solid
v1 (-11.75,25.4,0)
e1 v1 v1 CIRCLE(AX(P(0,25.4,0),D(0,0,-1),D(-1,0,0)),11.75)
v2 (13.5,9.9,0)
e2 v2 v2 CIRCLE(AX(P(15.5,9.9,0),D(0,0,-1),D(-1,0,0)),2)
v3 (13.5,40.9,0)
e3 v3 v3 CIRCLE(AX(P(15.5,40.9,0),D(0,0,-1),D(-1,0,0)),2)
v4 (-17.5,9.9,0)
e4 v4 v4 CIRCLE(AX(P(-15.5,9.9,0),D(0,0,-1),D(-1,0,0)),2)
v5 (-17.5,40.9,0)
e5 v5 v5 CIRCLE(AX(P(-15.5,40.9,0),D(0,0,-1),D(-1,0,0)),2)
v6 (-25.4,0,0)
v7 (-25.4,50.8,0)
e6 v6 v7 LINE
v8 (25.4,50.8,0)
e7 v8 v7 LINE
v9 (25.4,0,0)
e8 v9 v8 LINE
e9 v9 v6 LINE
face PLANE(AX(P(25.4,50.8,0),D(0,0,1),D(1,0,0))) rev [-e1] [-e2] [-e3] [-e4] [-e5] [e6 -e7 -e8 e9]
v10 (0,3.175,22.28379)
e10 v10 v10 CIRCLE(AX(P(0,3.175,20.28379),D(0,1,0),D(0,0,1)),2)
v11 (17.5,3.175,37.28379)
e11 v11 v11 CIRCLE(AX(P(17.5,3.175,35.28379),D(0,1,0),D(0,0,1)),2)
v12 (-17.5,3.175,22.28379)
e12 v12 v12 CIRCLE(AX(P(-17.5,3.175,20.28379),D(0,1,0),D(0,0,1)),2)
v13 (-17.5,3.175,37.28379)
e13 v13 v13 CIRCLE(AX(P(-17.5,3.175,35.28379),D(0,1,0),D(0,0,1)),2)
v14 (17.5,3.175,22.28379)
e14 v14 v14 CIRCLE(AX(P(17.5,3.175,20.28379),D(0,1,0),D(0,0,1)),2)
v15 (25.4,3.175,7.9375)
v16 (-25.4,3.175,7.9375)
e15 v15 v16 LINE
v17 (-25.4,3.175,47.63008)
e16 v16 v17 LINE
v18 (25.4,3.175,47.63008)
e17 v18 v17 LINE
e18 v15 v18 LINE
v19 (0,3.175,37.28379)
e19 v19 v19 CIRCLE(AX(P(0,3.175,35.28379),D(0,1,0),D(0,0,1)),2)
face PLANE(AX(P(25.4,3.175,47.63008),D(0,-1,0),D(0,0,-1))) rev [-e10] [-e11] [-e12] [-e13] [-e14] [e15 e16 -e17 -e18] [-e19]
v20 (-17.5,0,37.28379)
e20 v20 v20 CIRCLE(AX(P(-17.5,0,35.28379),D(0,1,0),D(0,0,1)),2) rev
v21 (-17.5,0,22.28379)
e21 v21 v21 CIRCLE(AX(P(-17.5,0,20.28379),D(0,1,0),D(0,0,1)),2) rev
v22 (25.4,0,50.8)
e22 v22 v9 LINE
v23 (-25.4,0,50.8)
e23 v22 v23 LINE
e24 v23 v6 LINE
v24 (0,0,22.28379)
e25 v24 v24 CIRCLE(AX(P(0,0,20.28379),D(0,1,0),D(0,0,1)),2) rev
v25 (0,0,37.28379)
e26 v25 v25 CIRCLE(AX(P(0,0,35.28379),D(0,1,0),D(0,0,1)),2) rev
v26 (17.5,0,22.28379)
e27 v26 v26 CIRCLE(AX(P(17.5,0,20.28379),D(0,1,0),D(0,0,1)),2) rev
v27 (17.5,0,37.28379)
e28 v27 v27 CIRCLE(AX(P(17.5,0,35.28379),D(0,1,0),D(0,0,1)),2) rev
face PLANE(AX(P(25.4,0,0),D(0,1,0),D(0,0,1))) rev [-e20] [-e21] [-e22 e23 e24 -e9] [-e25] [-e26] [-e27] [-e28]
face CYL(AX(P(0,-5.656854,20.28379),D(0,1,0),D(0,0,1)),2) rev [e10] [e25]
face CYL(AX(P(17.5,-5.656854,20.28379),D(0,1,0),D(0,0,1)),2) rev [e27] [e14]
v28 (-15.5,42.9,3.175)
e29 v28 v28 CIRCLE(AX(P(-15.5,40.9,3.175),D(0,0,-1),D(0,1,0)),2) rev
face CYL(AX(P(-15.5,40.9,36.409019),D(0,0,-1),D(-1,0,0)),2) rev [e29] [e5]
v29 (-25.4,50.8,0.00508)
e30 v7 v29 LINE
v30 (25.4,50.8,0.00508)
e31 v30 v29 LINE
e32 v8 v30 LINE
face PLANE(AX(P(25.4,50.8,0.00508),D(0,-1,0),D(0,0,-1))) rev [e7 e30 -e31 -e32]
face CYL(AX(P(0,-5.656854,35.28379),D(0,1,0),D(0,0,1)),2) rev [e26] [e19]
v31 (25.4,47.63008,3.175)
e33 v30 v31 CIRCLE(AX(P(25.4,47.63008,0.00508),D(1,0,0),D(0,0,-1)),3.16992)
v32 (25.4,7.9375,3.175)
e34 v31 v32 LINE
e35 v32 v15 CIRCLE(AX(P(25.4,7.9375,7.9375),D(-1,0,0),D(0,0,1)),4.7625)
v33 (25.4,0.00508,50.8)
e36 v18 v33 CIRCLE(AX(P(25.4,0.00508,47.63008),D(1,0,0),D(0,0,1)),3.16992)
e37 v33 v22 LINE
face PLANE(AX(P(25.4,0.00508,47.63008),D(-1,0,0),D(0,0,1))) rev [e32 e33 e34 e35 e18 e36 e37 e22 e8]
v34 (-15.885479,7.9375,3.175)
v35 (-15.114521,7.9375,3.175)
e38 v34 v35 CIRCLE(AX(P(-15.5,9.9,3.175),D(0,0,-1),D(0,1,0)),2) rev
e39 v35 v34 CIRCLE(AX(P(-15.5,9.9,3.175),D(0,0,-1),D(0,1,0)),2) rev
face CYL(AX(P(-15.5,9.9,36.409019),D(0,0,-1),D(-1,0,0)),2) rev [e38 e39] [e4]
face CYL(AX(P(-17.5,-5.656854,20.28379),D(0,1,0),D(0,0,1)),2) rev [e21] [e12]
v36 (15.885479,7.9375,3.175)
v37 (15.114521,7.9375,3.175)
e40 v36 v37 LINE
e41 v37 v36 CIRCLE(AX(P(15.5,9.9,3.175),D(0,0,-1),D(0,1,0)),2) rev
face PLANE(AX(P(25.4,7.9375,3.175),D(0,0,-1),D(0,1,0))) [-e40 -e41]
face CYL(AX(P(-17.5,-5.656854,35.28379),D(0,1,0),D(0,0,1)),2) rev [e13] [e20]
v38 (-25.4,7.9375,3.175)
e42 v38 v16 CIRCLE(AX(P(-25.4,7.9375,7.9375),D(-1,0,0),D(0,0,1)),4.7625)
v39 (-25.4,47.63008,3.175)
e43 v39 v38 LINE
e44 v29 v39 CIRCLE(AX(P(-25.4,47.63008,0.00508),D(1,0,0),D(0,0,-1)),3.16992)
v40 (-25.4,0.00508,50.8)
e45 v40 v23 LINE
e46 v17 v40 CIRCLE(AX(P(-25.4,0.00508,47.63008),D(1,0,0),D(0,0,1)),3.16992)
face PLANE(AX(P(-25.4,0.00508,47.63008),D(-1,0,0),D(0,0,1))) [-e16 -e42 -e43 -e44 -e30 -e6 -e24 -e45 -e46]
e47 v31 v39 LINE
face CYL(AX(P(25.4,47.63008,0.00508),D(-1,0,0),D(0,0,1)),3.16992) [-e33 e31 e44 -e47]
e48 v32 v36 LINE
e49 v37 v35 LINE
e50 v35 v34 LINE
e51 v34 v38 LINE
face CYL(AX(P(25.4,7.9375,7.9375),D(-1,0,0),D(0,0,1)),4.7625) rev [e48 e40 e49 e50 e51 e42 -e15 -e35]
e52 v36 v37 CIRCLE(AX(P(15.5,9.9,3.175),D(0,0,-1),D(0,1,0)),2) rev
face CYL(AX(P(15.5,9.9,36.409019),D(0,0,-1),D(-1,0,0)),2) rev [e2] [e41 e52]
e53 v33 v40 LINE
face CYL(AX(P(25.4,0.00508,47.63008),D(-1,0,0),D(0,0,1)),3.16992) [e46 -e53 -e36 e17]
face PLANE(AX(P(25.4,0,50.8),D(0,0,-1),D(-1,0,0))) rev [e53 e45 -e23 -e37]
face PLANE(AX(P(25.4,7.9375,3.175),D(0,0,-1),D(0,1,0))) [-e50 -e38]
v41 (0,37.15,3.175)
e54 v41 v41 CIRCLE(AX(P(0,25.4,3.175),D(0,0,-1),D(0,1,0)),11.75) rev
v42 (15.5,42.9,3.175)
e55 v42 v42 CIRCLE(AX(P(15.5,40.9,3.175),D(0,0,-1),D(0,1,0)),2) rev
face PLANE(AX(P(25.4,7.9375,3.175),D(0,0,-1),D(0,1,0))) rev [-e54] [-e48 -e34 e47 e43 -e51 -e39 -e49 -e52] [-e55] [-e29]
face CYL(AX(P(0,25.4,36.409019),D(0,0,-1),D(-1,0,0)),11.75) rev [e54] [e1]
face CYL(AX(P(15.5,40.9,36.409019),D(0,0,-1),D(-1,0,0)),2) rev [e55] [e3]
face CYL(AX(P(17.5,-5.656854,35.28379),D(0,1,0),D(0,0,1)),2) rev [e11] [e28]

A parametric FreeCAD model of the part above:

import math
import FreeCAD as App
import Part
import Sketcher

V = App.Vector
Q = App.Units.Quantity

doc = App.newDocument("Part")
params = doc.addObject("Spreadsheet::Sheet", "Params")
for row, (alias, value) in enumerate([
    ("sketch1_width", "2 in"),
    ("sketch1_radius", "0.1875 in"),
    ("pad1_length", "2 in"),
    ("pocket1_length", "0.125 in"),
    ("pocket2_length", "0.125 in"),
], start=1):
    params.set(f"A{row}", alias)
    params.set(f"B{row}", "=" + value)
    params.setAlias(f"B{row}", alias)

body = doc.addObject("PartDesign::Body", "Body")

# Sketch on YZ plane
sketch1 = body.newObject("Sketcher::SketchObject", "Sketch")
sketch1.AttachmentSupport = (doc.getObject("YZ_Plane"), [""])
sketch1.MapMode = "FlatFace"
sketch1.AttachmentOffset = App.Placement(V(0, 0, -1 * 25.4), App.Rotation())
sketch1.addGeometry(Part.LineSegment(V(0, 50.8, 0), V(0, 0, 0)), False)
sketch1.addGeometry(Part.LineSegment(V(0, 0, 0), V(50.8, 0, 0)), False)
sketch1.addGeometry(Part.LineSegment(V(50.8, 0, 0), V(50.8, 0.005, 0)), False)
sketch1.addGeometry(Part.ArcOfCircle(Part.Circle(V(47.63, 0.005, 0), V(0, 0, 1), 3.17), math.radians(0), math.radians(90)), False)
sketch1.addGeometry(Part.LineSegment(V(47.63, 3.175, 0), V(7.938, 3.175, 0)), False)
sketch1.addGeometry(Part.ArcOfCircle(Part.Circle(V(7.938, 7.938, 0), V(0, 0, 1), 4.763), math.radians(-180), math.radians(-90)), False)
sketch1.addGeometry(Part.LineSegment(V(3.175, 7.938, 0), V(3.175, 47.63, 0)), False)
sketch1.addGeometry(Part.ArcOfCircle(Part.Circle(V(0.005, 47.63, 0), V(0, 0, 1), 3.17), math.radians(0), math.radians(90)), False)
sketch1.addGeometry(Part.LineSegment(V(0.005, 50.8, 0), V(0, 50.8, 0)), False)
sketch1.addConstraint(Sketcher.Constraint("Coincident", 0, 2, 1, 1))
sketch1.addConstraint(Sketcher.Constraint("Coincident", 1, 2, 2, 1))
sketch1.addConstraint(Sketcher.Constraint("Tangent", 2, 2, 3, 1))
sketch1.addConstraint(Sketcher.Constraint("Tangent", 3, 2, 4, 1))
sketch1.addConstraint(Sketcher.Constraint("Tangent", 4, 2, 5, 2))
sketch1.addConstraint(Sketcher.Constraint("Tangent", 5, 1, 6, 1))
sketch1.addConstraint(Sketcher.Constraint("Tangent", 6, 2, 7, 1))
sketch1.addConstraint(Sketcher.Constraint("Tangent", 7, 2, 8, 1))
sketch1.addConstraint(Sketcher.Constraint("Coincident", 8, 2, 0, 1))
sketch1.addConstraint(Sketcher.Constraint("Vertical", 0))
sketch1.addConstraint(Sketcher.Constraint("Horizontal", 1))
sketch1.addConstraint(Sketcher.Constraint("Horizontal", 4))
sketch1.addConstraint(Sketcher.Constraint("Vertical", 6))
sketch1.addConstraint(Sketcher.Constraint("Coincident", 0, 2, -1, 1))
sketch1.addConstraint(Sketcher.Constraint("Equal", 3, 7))
sketch1.addConstraint(Sketcher.Constraint("Horizontal", 3, 3, 2, 2))
sketch1.addConstraint(Sketcher.Constraint("Equal", 1, 0))
sketch1.addConstraint(Sketcher.Constraint("Equal", 8, 2))
sketch1.addConstraint(Sketcher.Constraint("Equal", 4, 6))
sketch1.addConstraint(Sketcher.Constraint("DistanceX", 1, 1, 1, 2, Q("2 in")))
sketch1.addConstraint(Sketcher.Constraint("Radius", 5, Q("0.1875 in")))
sketch1.addConstraint(Sketcher.Constraint("Radius", 3, Q("0.1248 in")))
sketch1.addConstraint(Sketcher.Constraint("DistanceX", 4, 2, 4, 1, Q("1.5627 in")))
sketch1.setExpression("Constraints[19]", "Params.sketch1_width")
sketch1.setExpression("Constraints[20]", "Params.sketch1_radius")
pad1 = body.newObject("PartDesign::Pad", "Pad")
pad1.Profile = sketch1
pad1.setExpression("Length", "Params.pad1_length")

# Sketch on XY plane
sketch2 = body.newObject("Sketcher::SketchObject", "Sketch001")
sketch2.AttachmentSupport = (doc.getObject("XY_Plane"), [""])
sketch2.MapMode = "FlatFace"
sketch2.addGeometry(Part.Circle(V(0, 25.4, 0), V(0, 0, 1), 11.8), False)
sketch2.addGeometry(Part.Circle(V(15.5, 40.9, 0), V(0, 0, 1), 2), False)
sketch2.addGeometry(Part.Circle(V(-15.5, 40.9, 0), V(0, 0, 1), 2), False)
sketch2.addGeometry(Part.Circle(V(-15.5, 9.9, 0), V(0, 0, 1), 2), False)
sketch2.addGeometry(Part.Circle(V(15.5, 9.9, 0), V(0, 0, 1), 2), False)
sketch2.addConstraint(Sketcher.Constraint("Equal", 1, 2))
sketch2.addConstraint(Sketcher.Constraint("Equal", 2, 3))
sketch2.addConstraint(Sketcher.Constraint("Equal", 3, 4))
sketch2.addConstraint(Sketcher.Constraint("Symmetric", 1, 3, 2, 3, -2))
sketch2.addConstraint(Sketcher.Constraint("Symmetric", 3, 3, 4, 3, -2))
sketch2.addConstraint(Sketcher.Constraint("PointOnObject", 0, 3, -2))
sketch2.addConstraint(Sketcher.Constraint("Vertical", 2, 3, 3, 3))
sketch2.addConstraint(Sketcher.Constraint("DistanceY", -1, 1, 0, 3, Q("1 in")))
sketch2.addConstraint(Sketcher.Constraint("Diameter", 0, 23.5))
sketch2.addConstraint(Sketcher.Constraint("Diameter", 1, 4.0))
sketch2.addConstraint(Sketcher.Constraint("DistanceX", -1, 1, 1, 3, 15.5))
sketch2.addConstraint(Sketcher.Constraint("DistanceY", -1, 1, 1, 3, 40.9))
sketch2.addConstraint(Sketcher.Constraint("DistanceY", -1, 1, 3, 3, 9.9))
pocket1 = body.newObject("PartDesign::Pocket", "Pocket")
pocket1.Profile = sketch2
pocket1.setExpression("Length", "Params.pocket1_length")
pocket1.Reversed = True

# Sketch on XZ plane
sketch3 = body.newObject("Sketcher::SketchObject", "Sketch002")
sketch3.AttachmentSupport = (doc.getObject("XZ_Plane"), [""])
sketch3.MapMode = "FlatFace"
sketch3.AttachmentOffset = App.Placement(V(0, 0, -0.125 * 25.4), App.Rotation())
sketch3.addGeometry(Part.Circle(V(-17.5, 20.3, 0), V(0, 0, 1), 2), False)
sketch3.addGeometry(Part.Circle(V(17.5, 20.3, 0), V(0, 0, 1), 2), False)
sketch3.addGeometry(Part.Circle(V(17.5, 35.3, 0), V(0, 0, 1), 2), False)
sketch3.addGeometry(Part.Circle(V(-17.5, 35.3, 0), V(0, 0, 1), 2), False)
sketch3.addGeometry(Part.Circle(V(0, 20.3, 0), V(0, 0, 1), 2), False)
sketch3.addGeometry(Part.Circle(V(0, 35.3, 0), V(0, 0, 1), 2), False)
sketch3.addConstraint(Sketcher.Constraint("Equal", 0, 1))
sketch3.addConstraint(Sketcher.Constraint("Equal", 1, 2))
sketch3.addConstraint(Sketcher.Constraint("Equal", 2, 3))
sketch3.addConstraint(Sketcher.Constraint("Equal", 3, 4))
sketch3.addConstraint(Sketcher.Constraint("Equal", 4, 5))
sketch3.addConstraint(Sketcher.Constraint("Symmetric", 0, 3, 1, 3, -2))
sketch3.addConstraint(Sketcher.Constraint("Symmetric", 2, 3, 3, 3, -2))
sketch3.addConstraint(Sketcher.Constraint("PointOnObject", 4, 3, -2))
sketch3.addConstraint(Sketcher.Constraint("PointOnObject", 5, 3, -2))
sketch3.addConstraint(Sketcher.Constraint("Horizontal", 1, 3, 4, 3))
sketch3.addConstraint(Sketcher.Constraint("Horizontal", 3, 3, 5, 3))
sketch3.addConstraint(Sketcher.Constraint("Vertical", 1, 3, 2, 3))
sketch3.addConstraint(Sketcher.Constraint("Diameter", 0, 4.0))
sketch3.addConstraint(Sketcher.Constraint("DistanceX", 0, 3, -1, 1, 17.5))
sketch3.addConstraint(Sketcher.Constraint("DistanceY", 1, 3, 2, 3, 15.0))
sketch3.addConstraint(Sketcher.Constraint("DistanceY", -1, 1, 0, 3, 20.28379))
pocket2 = body.newObject("PartDesign::Pocket", "Pocket001")
pocket2.Profile = sketch3
pocket2.setExpression("Length", "Params.pocket2_length")
pocket2.Reversed = True

doc.recompute()
